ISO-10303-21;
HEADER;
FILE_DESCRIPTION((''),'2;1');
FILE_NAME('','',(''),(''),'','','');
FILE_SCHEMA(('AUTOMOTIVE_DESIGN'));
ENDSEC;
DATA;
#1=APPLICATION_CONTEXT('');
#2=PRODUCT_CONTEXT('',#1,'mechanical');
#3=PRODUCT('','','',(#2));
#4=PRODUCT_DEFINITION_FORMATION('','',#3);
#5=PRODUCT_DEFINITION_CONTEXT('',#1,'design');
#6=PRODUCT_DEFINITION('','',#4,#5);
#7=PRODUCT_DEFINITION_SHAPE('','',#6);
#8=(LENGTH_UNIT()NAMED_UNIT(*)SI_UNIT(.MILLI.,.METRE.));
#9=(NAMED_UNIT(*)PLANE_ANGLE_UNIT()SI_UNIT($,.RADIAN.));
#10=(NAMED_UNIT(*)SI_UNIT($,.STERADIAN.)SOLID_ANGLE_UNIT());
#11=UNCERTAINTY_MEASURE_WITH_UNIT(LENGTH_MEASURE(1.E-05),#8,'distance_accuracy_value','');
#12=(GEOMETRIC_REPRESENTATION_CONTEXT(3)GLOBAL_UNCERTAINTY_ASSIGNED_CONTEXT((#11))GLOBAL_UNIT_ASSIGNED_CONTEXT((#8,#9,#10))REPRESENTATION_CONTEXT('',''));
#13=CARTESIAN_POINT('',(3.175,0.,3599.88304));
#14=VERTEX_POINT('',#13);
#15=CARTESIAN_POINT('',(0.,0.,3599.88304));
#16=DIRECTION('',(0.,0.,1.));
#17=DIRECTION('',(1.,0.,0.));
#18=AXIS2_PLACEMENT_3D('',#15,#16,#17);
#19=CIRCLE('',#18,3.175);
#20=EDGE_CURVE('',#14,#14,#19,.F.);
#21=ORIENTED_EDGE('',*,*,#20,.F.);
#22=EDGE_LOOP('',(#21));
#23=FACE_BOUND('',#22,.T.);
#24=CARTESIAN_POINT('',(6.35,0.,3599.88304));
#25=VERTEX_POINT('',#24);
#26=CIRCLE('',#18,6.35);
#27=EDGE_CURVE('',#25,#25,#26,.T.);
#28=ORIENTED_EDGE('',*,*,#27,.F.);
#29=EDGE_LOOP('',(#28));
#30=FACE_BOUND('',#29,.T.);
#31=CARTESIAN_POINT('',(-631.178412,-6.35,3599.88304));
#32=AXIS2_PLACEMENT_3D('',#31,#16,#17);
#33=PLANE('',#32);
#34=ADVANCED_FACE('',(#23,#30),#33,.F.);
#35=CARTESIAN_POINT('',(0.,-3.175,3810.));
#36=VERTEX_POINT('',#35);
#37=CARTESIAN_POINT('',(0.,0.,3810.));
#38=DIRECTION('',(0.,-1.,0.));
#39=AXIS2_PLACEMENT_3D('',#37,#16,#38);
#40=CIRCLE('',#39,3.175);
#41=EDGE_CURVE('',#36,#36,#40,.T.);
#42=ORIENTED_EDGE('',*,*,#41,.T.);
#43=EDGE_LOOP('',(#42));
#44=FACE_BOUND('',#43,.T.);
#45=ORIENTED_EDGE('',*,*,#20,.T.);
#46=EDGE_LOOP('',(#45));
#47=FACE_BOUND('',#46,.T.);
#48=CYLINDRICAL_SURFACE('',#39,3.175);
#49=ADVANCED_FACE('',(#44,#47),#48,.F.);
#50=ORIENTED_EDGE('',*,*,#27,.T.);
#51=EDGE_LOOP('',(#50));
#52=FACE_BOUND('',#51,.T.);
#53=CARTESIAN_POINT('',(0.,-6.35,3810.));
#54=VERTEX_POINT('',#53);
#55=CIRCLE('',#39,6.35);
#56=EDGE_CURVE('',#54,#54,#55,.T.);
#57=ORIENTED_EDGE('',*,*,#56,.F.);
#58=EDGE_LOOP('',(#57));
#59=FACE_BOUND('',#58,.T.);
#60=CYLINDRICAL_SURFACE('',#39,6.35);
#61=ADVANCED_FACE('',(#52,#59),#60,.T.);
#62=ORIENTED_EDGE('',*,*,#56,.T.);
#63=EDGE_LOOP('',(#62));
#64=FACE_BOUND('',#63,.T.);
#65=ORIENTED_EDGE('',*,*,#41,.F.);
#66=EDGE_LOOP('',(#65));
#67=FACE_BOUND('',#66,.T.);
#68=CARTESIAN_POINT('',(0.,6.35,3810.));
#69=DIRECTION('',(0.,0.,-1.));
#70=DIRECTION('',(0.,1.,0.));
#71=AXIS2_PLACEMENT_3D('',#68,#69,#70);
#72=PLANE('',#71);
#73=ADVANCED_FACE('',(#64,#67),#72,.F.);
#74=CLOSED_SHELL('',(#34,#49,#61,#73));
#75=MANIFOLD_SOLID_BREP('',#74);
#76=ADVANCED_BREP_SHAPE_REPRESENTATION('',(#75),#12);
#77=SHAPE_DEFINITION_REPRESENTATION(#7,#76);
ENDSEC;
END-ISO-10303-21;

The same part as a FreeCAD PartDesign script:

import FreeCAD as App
import Part
import Sketcher
from FreeCAD import Vector
Q = App.Units.Quantity


def add_polygon(sketch, points):
    """Adds a closed chain of lines whose ends are joined by coincident constraints."""
    first, n = sketch.GeometryCount, len(points)
    for a, b in zip(points, points[1:] + points[:1]):
        sketch.addGeometry(Part.LineSegment(App.Vector(*a, 0), App.Vector(*b, 0)), False)
    for i in range(n):
        sketch.addConstraint(Sketcher.Constraint("Coincident", first + i, 2, first + (i + 1) % n, 1))

doc = App.newDocument("Part")
body = doc.addObject("PartDesign::Body", "Body")

sketch1 = body.newObject("Sketcher::SketchObject", "Sketch")
sketch1.AttachmentSupport = (doc.getObject("YZ_Plane"), [""])
sketch1.MapMode = "FlatFace"
add_polygon(sketch1, [(6.3, 3810), (3.2, 3810), (3.2, -3810), (6.3, -3810)])
sketch1.addConstraint(Sketcher.Constraint("Horizontal", 0))
sketch1.addConstraint(Sketcher.Constraint("Vertical", 1))
sketch1.addConstraint(Sketcher.Constraint("Horizontal", 2))
sketch1.addConstraint(Sketcher.Constraint("Vertical", 3))
sketch1.addConstraint(Sketcher.Constraint("DistanceY", 1, 2, 1, 1, Q("300 in")))
sketch1.addConstraint(Sketcher.Constraint("DistanceY", -1, 1, 0, 2, Q("150 in")))
sketch1.addConstraint(Sketcher.Constraint("DistanceX", 0, 2, 0, 1, Q("0.125 in")))
sketch1.addConstraint(Sketcher.Constraint("DistanceX", -1, 1, 2, 2, Q("0.25 in")))
revolution = body.newObject("PartDesign::Revolution", "Revolution")
revolution.Profile = sketch1
revolution.ReferenceAxis = (sketch1, ["V_Axis"])
revolution.Angle = 360

sketch2 = body.newObject("Sketcher::SketchObject", "Sketch001")
sketch2.AttachmentSupport = (doc.getObject("XZ_Plane"), [""])
sketch2.MapMode = "FlatFace"
add_polygon(sketch2, [(-631, -4226), (-631, 3600), (493, 3600), (493, -4226)])
sketch2.addConstraint(Sketcher.Constraint("Vertical", 0))
sketch2.addConstraint(Sketcher.Constraint("Horizontal", 1))
sketch2.addConstraint(Sketcher.Constraint("Vertical", 2))
sketch2.addConstraint(Sketcher.Constraint("Horizontal", 3))
sketch2.addConstraint(Sketcher.Constraint("DistanceY", 0, 1, 0, 2, 7825.819751))
sketch2.addConstraint(Sketcher.Constraint("DistanceX", 1, 1, 1, 2, 1124.286546))
sketch2.addConstraint(Sketcher.Constraint("DistanceX", 0, 2, -1, 1, 631.178412))
sketch2.addConstraint(Sketcher.Constraint("DistanceY", -1, 1, 0, 2, 3599.88304))
pocket1 = body.newObject("PartDesign::Pocket", "Pocket")
pocket1.Profile = sketch2
pocket1.Type = "ThroughAll"
pocket1.Midplane = True

doc.recompute()
